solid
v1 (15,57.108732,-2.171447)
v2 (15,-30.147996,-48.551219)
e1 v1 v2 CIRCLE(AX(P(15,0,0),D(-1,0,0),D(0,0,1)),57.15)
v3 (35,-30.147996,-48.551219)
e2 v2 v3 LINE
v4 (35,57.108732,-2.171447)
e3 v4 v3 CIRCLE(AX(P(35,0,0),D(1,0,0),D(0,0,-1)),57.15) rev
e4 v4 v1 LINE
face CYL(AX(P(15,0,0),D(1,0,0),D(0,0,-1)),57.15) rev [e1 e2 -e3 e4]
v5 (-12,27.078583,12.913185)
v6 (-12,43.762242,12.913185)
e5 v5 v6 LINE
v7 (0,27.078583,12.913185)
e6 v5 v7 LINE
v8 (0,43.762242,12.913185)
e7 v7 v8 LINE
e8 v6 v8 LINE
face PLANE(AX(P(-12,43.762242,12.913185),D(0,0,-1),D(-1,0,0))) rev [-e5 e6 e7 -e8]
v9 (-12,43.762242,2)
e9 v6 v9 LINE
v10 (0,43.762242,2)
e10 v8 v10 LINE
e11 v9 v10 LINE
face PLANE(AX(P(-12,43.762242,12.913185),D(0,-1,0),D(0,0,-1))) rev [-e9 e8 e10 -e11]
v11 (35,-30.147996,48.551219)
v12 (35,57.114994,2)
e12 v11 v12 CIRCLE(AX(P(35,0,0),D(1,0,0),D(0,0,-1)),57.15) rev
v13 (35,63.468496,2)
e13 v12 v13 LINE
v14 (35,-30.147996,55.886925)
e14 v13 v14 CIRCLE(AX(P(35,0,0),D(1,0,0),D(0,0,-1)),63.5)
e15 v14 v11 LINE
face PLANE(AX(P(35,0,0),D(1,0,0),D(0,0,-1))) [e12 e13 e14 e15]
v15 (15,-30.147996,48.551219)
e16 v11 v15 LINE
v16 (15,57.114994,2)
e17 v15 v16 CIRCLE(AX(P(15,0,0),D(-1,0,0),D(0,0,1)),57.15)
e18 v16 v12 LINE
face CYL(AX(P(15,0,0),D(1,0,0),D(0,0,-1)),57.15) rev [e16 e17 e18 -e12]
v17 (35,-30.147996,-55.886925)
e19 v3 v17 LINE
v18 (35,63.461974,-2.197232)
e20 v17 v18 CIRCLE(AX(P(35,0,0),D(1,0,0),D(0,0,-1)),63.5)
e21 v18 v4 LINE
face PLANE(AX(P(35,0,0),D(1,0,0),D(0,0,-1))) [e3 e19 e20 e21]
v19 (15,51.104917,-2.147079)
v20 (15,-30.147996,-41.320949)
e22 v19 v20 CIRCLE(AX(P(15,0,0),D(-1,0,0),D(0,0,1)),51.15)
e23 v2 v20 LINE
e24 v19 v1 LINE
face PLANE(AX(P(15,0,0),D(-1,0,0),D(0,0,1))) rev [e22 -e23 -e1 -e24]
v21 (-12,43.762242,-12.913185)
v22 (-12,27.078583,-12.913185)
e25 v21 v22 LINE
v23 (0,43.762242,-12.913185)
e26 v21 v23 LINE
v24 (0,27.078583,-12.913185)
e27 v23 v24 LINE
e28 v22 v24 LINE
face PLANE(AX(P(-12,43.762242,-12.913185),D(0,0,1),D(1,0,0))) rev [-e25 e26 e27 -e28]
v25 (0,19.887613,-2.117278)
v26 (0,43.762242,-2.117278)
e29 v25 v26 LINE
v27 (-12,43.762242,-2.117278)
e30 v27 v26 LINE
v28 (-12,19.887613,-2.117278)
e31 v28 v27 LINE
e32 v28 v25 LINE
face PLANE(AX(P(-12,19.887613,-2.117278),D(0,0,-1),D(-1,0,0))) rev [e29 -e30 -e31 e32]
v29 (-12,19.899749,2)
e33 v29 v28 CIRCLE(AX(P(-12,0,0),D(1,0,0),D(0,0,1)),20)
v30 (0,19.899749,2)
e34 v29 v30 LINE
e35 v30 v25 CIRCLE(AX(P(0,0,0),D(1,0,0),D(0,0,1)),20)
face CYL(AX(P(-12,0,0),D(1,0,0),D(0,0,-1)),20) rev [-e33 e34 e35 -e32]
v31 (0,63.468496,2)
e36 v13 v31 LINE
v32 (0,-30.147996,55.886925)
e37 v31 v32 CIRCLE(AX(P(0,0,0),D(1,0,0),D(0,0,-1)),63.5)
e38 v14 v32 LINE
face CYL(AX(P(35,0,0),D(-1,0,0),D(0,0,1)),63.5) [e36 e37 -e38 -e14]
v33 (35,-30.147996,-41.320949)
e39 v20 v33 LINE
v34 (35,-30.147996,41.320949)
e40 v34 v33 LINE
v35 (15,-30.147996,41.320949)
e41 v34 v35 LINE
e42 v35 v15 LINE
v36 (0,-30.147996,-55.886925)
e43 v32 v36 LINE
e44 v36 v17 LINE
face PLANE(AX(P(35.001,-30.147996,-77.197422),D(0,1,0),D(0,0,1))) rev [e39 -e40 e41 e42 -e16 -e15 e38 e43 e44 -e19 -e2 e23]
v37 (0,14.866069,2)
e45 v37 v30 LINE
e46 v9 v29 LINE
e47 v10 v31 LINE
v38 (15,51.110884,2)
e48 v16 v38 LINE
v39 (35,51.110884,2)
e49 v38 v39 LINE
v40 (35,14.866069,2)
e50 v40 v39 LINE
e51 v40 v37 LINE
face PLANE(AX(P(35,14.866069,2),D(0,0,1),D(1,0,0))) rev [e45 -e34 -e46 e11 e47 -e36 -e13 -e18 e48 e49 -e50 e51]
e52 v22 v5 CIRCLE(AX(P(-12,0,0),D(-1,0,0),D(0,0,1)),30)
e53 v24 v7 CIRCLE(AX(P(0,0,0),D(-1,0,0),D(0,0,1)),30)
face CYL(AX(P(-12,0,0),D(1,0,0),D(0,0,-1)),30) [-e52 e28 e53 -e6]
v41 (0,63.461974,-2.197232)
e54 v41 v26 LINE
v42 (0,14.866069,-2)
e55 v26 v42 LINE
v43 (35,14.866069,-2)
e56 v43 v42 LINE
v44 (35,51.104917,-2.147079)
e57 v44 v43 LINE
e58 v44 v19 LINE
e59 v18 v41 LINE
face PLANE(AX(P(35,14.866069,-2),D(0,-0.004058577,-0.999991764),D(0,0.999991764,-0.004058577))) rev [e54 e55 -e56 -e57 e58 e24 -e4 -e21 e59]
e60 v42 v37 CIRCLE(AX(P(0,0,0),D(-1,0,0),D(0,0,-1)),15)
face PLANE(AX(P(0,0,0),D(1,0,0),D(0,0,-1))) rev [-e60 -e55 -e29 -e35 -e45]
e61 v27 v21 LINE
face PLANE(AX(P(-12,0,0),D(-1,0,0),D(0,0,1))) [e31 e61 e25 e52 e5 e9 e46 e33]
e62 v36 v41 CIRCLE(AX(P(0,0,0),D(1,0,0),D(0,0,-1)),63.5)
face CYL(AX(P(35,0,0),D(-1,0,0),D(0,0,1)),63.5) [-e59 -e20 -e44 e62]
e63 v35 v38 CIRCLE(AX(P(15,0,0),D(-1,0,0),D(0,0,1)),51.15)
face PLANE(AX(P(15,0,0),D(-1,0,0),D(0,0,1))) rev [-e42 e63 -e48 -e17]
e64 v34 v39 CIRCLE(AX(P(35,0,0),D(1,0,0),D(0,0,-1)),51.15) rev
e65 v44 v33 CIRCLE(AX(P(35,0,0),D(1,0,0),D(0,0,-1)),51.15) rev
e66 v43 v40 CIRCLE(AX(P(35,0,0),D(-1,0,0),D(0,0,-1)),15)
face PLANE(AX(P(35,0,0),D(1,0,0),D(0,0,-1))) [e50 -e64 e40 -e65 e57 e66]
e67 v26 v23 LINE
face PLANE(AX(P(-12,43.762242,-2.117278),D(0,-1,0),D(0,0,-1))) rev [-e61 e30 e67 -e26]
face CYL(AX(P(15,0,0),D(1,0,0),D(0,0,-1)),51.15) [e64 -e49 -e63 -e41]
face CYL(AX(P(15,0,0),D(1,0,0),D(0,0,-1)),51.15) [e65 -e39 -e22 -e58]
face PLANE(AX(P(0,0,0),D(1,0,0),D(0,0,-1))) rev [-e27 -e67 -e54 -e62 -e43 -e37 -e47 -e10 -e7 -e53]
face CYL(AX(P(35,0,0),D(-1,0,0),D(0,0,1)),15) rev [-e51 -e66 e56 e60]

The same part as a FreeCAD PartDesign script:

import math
import FreeCAD as App
import Part
import Sketcher

doc = App.newDocument("Part")
params = doc.addObject("Spreadsheet::Sheet", "Params")
for row, (alias, value) in enumerate([
    ("sketch1_radius", "15 mm"),
    ("sketch1_radius2", "63.5 mm"),
    ("pad1_length", "35 mm"),
    ("sketch2_radius", "30 mm"),
    ("sketch2_radius2", "20 mm"),
    ("pad2_length", "12 mm"),
    ("sketch3_diameter", "114.3 mm"),
    ("sketch3_diameter2", "102.3 mm"),
    ("pocket1_length", "20 mm"),
], start=1):
    params.set(f"A{row}", alias)
    params.set(f"B{row}", "=" + value)
    params.setAlias(f"B{row}", alias)

body = doc.addObject("PartDesign::Body", "Body")

sketch1 = body.newObject("Sketcher::SketchObject", "Sketch")
sketch1.AttachmentSupport = (doc.getObject("YZ_Plane"), [""])
sketch1.MapMode = "FlatFace"
sketch1.addGeometry([
    Part.LineSegment(App.Vector(14.9, 2, 0), App.Vector(63.5, 2, 0)),
    Part.ArcOfCircle(Part.Circle(App.Vector(0, 0, 0), App.Vector(0, 0, 1), 63.5), math.radians(2), math.radians(358)),
    Part.LineSegment(App.Vector(63.5, -2.2, 0), App.Vector(14.9, -2, 0)),
    Part.ArcOfCircle(Part.Circle(App.Vector(0, 0, 0), App.Vector(0, 0, 1), 15), math.radians(8), math.radians(352)),
], False)
sketch1.addConstraint([
    Sketcher.Constraint("Coincident", 0, 2, 1, 1),
    Sketcher.Constraint("Coincident", 1, 2, 2, 1),
    Sketcher.Constraint("Coincident", 2, 2, 3, 2),
    Sketcher.Constraint("Coincident", 3, 1, 0, 1),
    Sketcher.Constraint("Horizontal", 0),
    Sketcher.Constraint("Coincident", 1, 3, -1, 1),
    Sketcher.Constraint("Coincident", 3, 3, -1, 1),
    Sketcher.Constraint("Vertical", 2, 2, 3, 1),
    Sketcher.Constraint("Radius", 3, 15.0),
    Sketcher.Constraint("Radius", 1, 63.5),
    Sketcher.Constraint("DistanceY", -1, 1, 0, 2, 2.0),
    Sketcher.Constraint("DistanceY", 1, 2, -1, 1, 2.197232),
])
sketch1.setExpression("Constraints[8]", "Params.sketch1_radius")
sketch1.setExpression("Constraints[9]", "Params.sketch1_radius2")
pad1 = body.newObject("PartDesign::Pad", "Pad")
pad1.Profile = sketch1
pad1.setExpression("Length", "Params.pad1_length")

sketch2 = body.newObject("Sketcher::SketchObject", "Sketch001")
sketch2.AttachmentSupport = (doc.getObject("YZ_Plane"), [""])
sketch2.MapMode = "FlatFace"
sketch2.addGeometry([
    Part.LineSegment(App.Vector(19.9, -2.1, 0), App.Vector(43.8, -2.1, 0)),
    Part.LineSegment(App.Vector(43.8, -2.1, 0), App.Vector(43.8, -12.9, 0)),
    Part.LineSegment(App.Vector(43.8, -12.9, 0), App.Vector(27.1, -12.9, 0)),
    Part.ArcOfCircle(Part.Circle(App.Vector(0, 0, 0), App.Vector(0, 0, 1), 30), math.radians(25), math.radians(335)),
    Part.LineSegment(App.Vector(27.1, 12.9, 0), App.Vector(43.8, 12.9, 0)),
    Part.LineSegment(App.Vector(43.8, 12.9, 0), App.Vector(43.8, 2, 0)),
    Part.LineSegment(App.Vector(43.8, 2, 0), App.Vector(19.9, 2, 0)),
    Part.ArcOfCircle(Part.Circle(App.Vector(0, 0, 0), App.Vector(0, 0, 1), 20), math.radians(6), math.radians(354)),
], False)
sketch2.addConstraint([
    Sketcher.Constraint("Coincident", 0, 2, 1, 1),
    Sketcher.Constraint("Coincident", 1, 2, 2, 1),
    Sketcher.Constraint("Coincident", 2, 2, 3, 2),
    Sketcher.Constraint("Coincident", 3, 1, 4, 1),
    Sketcher.Constraint("Coincident", 4, 2, 5, 1),
    Sketcher.Constraint("Coincident", 5, 2, 6, 1),
    Sketcher.Constraint("Coincident", 6, 2, 7, 1),
    Sketcher.Constraint("Coincident", 7, 2, 0, 1),
    Sketcher.Constraint("Horizontal", 0),
    Sketcher.Constraint("Vertical", 1),
    Sketcher.Constraint("Horizontal", 2),
    Sketcher.Constraint("Horizontal", 4),
    Sketcher.Constraint("Vertical", 5),
    Sketcher.Constraint("Horizontal", 6),
    Sketcher.Constraint("Coincident", 3, 3, -1, 1),
    Sketcher.Constraint("Coincident", 7, 3, -1, 1),
    Sketcher.Constraint("Symmetric", 1, 2, 4, 2, -1),
    Sketcher.Constraint("Radius", 3, 30.0),
    Sketcher.Constraint("Radius", 7, 20.0),
    Sketcher.Constraint("DistanceY", -1, 1, 5, 2, 2.0),
    Sketcher.Constraint("DistanceX", 0, 1, 0, 2, 23.874629),
    Sketcher.Constraint("DistanceX", 2, 2, 2, 1, 16.683659),
    Sketcher.Constraint("DistanceX", 6, 2, 6, 1, 23.862493),
])
sketch2.setExpression("Constraints[17]", "Params.sketch2_radius")
sketch2.setExpression("Constraints[18]", "Params.sketch2_radius2")
pad2 = body.newObject("PartDesign::Pad", "Pad001")
pad2.Profile = sketch2
pad2.setExpression("Length", "Params.pad2_length")
pad2.Reversed = True

sketch3 = body.newObject("Sketcher::SketchObject", "Sketch002")
sketch3.AttachmentSupport = (doc.getObject("YZ_Plane"), [""])
sketch3.MapMode = "FlatFace"
sketch3.AttachmentOffset = App.Placement(App.Vector(0, 0, 35), App.Rotation())
sketch3.addGeometry([
    Part.Circle(App.Vector(0, 0, 0), App.Vector(0, 0, 1), 57),
    Part.Circle(App.Vector(0, 0, 0), App.Vector(0, 0, 1), 51),
], False)
sketch3.addConstraint([
    Sketcher.Constraint("Coincident", 0, 3, -1, 1),
    Sketcher.Constraint("Coincident", 1, 3, -1, 1),
    Sketcher.Constraint("Diameter", 0, 114.3),
    Sketcher.Constraint("Diameter", 1, 102.3),
])
sketch3.setExpression("Constraints[2]", "Params.sketch3_diameter")
sketch3.setExpression("Constraints[3]", "Params.sketch3_diameter2")
pocket1 = body.newObject("PartDesign::Pocket", "Pocket")
pocket1.Profile = sketch3
pocket1.setExpression("Length", "Params.pocket1_length")

sketch4 = body.newObject("Sketcher::SketchObject", "Sketch003")
sketch4.AttachmentSupport = (doc.getObject("YZ_Plane"), [""])
sketch4.MapMode = "FlatFace"
sketch4.addGeometry([
    Part.LineSegment(App.Vector(-30, -77, 0), App.Vector(-69, -77, 0)),
    Part.LineSegment(App.Vector(-69, -77, 0), App.Vector(-69, 75, 0)),
    Part.LineSegment(App.Vector(-69, 75, 0), App.Vector(-30, 75, 0)),
    Part.LineSegment(App.Vector(-30, 75, 0), App.Vector(-30, -77, 0)),
], False)
sketch4.addConstraint([
    Sketcher.Constraint("Coincident", 0, 2, 1, 1),
    Sketcher.Constraint("Coincident", 1, 2, 2, 1),
    Sketcher.Constraint("Coincident", 2, 2, 3, 1),
    Sketcher.Constraint("Coincident", 3, 2, 0, 1),
    Sketcher.Constraint("Horizontal", 0),
    Sketcher.Constraint("Vertical", 1),
    Sketcher.Constraint("Horizontal", 2),
    Sketcher.Constraint("Vertical", 3),
    Sketcher.Constraint("DistanceY", 1, 1, 1, 2, 151.714378),
    Sketcher.Constraint("DistanceX", 0, 2, -1, 1, 69.305799),
    Sketcher.Constraint("DistanceX", 0, 2, 0, 1, 39.157803),
    Sketcher.Constraint("DistanceY", 0, 2, -1, 1, 77.197422),
])
pocket2 = body.newObject("PartDesign::Pocket", "Pocket001")
pocket2.Profile = sketch4
pocket2.Type = "UpToFirst"
pocket2.Reversed = True

doc.recompute()
